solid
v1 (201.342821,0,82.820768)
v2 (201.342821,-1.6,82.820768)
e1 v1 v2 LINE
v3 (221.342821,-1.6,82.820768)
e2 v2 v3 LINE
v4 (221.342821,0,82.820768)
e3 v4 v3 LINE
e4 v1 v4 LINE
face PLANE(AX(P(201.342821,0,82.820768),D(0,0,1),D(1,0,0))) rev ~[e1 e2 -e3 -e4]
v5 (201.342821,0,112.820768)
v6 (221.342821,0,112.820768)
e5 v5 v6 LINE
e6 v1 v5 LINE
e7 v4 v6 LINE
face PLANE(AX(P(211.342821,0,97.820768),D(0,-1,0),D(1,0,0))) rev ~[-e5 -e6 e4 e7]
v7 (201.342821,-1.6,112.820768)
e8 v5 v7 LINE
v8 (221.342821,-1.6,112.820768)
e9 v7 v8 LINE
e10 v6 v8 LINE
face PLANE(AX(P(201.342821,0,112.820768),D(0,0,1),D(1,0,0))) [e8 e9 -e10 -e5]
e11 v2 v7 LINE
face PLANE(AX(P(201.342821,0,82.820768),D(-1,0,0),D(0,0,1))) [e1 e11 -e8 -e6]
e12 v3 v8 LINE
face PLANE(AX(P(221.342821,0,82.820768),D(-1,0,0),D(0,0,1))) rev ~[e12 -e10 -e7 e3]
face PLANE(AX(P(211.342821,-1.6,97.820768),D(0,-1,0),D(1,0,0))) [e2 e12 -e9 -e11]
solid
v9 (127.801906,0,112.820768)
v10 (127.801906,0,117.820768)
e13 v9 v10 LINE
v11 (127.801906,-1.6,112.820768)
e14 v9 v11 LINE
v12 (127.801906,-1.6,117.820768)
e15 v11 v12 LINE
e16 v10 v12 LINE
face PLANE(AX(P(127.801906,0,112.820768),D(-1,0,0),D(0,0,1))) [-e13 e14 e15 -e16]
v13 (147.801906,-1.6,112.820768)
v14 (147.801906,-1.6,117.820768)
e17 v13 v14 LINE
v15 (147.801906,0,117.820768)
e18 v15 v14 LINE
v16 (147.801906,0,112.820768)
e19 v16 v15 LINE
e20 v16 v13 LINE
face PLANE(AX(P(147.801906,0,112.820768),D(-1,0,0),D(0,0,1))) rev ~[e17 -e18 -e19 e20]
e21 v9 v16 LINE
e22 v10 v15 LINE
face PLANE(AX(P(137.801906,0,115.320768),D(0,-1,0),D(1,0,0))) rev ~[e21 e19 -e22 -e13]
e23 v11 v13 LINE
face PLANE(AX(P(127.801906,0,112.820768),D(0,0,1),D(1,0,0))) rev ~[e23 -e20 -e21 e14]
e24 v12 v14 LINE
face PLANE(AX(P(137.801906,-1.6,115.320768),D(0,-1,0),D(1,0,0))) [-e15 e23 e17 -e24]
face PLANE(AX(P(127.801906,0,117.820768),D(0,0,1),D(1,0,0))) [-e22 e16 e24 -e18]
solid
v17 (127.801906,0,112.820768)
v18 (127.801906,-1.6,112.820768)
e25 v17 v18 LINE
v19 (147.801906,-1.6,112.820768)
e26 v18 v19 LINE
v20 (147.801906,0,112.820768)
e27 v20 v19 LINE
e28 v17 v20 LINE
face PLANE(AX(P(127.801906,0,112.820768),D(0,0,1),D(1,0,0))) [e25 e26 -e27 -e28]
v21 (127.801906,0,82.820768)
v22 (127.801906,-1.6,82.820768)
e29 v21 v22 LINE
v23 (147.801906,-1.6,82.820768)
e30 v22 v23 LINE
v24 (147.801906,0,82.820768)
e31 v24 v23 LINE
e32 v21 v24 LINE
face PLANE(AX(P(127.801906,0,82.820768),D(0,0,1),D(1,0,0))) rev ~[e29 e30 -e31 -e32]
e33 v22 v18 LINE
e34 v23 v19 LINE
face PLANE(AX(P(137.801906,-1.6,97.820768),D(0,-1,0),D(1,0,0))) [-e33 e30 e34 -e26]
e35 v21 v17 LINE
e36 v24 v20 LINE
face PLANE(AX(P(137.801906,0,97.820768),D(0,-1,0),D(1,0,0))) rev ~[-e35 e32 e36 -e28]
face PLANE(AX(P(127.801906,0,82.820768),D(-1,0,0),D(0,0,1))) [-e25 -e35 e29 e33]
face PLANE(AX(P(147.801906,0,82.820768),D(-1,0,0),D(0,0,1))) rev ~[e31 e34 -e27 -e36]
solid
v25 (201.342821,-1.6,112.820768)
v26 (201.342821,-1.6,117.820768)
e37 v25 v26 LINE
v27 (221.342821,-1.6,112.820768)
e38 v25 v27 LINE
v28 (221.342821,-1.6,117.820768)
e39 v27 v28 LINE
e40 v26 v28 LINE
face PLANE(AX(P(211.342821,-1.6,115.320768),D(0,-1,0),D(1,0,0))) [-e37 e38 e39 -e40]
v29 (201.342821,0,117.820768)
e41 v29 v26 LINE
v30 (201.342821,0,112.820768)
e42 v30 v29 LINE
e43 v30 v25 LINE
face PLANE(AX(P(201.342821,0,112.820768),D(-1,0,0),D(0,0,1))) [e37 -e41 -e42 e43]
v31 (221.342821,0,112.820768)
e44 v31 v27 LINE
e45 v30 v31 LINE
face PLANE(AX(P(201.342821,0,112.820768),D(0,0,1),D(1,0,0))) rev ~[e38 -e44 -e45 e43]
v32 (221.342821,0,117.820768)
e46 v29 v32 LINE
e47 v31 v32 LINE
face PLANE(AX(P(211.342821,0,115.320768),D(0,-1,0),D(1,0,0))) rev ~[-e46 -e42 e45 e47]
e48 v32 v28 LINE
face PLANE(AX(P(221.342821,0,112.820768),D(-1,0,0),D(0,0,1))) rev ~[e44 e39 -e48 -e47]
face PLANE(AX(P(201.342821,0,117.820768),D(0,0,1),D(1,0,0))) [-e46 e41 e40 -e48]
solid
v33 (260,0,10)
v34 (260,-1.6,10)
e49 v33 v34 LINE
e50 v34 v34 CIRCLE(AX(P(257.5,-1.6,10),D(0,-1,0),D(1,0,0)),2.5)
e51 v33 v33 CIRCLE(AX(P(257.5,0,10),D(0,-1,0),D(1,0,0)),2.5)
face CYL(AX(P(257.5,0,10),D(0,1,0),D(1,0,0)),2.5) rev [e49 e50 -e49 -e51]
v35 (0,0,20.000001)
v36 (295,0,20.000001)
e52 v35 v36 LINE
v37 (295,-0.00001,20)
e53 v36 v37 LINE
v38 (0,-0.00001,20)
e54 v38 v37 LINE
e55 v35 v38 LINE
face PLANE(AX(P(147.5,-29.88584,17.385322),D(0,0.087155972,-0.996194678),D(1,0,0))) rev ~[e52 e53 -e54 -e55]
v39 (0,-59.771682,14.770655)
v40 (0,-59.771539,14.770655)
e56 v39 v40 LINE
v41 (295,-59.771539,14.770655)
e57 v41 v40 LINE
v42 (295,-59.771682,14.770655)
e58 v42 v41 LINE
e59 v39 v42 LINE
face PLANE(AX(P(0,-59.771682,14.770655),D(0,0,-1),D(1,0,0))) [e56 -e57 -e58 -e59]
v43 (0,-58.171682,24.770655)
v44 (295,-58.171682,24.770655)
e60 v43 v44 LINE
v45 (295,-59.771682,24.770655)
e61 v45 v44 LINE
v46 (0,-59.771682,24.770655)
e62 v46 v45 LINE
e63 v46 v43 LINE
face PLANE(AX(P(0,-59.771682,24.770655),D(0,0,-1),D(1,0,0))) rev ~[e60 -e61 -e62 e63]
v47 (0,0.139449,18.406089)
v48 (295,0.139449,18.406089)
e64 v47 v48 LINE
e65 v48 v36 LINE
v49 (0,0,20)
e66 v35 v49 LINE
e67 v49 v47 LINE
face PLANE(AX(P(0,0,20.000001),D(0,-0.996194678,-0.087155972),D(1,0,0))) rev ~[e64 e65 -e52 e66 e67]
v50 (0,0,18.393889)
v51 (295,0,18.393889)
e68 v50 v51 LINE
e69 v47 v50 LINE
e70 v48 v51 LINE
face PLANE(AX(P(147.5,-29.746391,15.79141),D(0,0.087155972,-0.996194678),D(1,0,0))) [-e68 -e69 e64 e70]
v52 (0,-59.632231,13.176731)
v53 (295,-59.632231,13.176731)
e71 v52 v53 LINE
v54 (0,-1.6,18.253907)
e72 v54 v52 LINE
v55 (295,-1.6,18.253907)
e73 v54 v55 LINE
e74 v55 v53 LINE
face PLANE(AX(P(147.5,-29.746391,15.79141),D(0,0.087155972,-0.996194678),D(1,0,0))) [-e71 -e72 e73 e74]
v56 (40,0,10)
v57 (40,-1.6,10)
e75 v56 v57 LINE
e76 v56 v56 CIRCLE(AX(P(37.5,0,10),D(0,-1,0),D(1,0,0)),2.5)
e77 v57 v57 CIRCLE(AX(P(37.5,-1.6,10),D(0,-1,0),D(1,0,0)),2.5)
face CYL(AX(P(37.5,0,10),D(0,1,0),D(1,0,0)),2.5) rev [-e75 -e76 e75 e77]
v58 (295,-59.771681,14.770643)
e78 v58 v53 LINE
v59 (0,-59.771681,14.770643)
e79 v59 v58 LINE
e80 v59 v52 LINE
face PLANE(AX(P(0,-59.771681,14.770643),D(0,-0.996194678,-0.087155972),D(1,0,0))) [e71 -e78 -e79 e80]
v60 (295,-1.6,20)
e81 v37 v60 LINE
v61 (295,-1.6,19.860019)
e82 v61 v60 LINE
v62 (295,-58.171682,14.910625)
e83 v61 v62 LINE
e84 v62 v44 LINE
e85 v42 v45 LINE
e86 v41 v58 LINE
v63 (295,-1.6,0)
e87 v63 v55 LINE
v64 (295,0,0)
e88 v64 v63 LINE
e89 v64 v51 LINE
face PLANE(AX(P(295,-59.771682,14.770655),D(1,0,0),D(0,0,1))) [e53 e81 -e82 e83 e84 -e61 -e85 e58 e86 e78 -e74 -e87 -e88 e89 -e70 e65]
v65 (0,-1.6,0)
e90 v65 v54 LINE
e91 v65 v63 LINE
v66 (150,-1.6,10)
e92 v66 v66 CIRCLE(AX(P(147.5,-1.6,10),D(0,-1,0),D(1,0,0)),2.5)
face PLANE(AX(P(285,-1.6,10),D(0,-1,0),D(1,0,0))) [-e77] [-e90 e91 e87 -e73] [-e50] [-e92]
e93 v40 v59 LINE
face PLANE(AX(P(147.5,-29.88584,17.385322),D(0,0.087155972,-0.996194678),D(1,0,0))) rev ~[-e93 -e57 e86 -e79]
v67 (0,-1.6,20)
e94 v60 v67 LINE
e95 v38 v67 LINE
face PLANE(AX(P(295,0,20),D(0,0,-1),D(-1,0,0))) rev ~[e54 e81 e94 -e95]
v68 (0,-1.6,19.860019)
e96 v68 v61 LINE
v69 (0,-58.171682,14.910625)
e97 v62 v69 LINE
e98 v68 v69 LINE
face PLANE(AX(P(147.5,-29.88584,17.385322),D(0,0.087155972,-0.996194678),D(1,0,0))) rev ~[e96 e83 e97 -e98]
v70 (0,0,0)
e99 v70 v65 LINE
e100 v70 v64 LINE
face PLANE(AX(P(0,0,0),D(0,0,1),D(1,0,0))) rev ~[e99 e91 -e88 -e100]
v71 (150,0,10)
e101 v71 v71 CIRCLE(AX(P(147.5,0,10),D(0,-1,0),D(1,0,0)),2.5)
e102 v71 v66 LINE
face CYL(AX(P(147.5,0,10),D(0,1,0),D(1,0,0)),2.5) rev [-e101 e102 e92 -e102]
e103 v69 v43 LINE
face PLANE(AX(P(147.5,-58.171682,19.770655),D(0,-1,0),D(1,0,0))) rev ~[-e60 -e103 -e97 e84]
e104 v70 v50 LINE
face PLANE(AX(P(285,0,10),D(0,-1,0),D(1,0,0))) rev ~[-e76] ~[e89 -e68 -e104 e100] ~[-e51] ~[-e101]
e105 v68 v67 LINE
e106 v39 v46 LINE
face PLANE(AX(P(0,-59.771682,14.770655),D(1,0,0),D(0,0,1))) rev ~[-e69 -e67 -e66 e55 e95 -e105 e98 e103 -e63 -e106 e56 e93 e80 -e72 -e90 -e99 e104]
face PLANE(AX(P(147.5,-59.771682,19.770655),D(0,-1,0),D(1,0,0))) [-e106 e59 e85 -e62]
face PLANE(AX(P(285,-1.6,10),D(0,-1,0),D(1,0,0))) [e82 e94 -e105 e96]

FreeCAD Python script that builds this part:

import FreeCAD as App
import Part
import Sketcher

V = App.Vector
Q = App.Units.Quantity


def add_polygon(sketch, points):
    """Adds a closed chain of lines whose ends are joined by coincident constraints."""
    first, n = sketch.GeometryCount, len(points)
    for a, b in zip(points, points[1:] + points[:1]):
        sketch.addGeometry(Part.LineSegment(App.Vector(*a, 0), App.Vector(*b, 0)), False)
    for i in range(n):
        sketch.addConstraint(Sketcher.Constraint("Coincident", first + i, 2, first + (i + 1) % n, 1))

doc = App.newDocument("Part")
params = doc.addObject("Spreadsheet::Sheet", "Params")
for row, (alias, value) in enumerate([
    ("sketch1_diameter", "5 mm"),
    ("sketch1_width", "295 mm"),
    ("sketch1_height", "20 mm"),
    ("pad1_length", "1.6 mm"),
    ("sketch2_width", "295 mm"),
    ("sketch2_height", "60 mm"),
    ("pad2_length", "1.6 mm"),
    ("sketch3_width", "295 mm"),
    ("sketch3_height", "10 mm"),
    ("pad3_length", "1.6 mm"),
    ("sketch4_width", "20 mm"),
    ("sketch4_height", "30 mm"),
    ("pad4_length", "1.6 mm"),
    ("sketch5_width", "20 mm"),
    ("sketch5_height", "5 mm"),
    ("pad5_length", "1.6 mm"),
], start=1):
    params.set(f"A{row}", alias)
    params.set(f"B{row}", "=" + value)
    params.setAlias(f"B{row}", alias)

body = doc.addObject("PartDesign::Body", "Body")

sketch1 = doc.addObject("Sketcher::SketchObject", "Sketch")
body.addObject(sketch1)
sketch1.AttachmentSupport = (doc.XZ_Plane, [""])
sketch1.MapMode = "FlatFace"
add_polygon(sketch1, [(295, 0), (295, 20), (0, 20), (0, 0)])
sketch1.addGeometry(Part.Circle(V(37.5, 10, 0), V(0, 0, 1), 2.5), False)
sketch1.addGeometry(Part.Circle(V(147.5, 10, 0), V(0, 0, 1), 2.5), False)
sketch1.addGeometry(Part.Circle(V(257.5, 10, 0), V(0, 0, 1), 2.5), False)
sketch1.addConstraint(Sketcher.Constraint("Vertical", 0))
sketch1.addConstraint(Sketcher.Constraint("Horizontal", 1))
sketch1.addConstraint(Sketcher.Constraint("Vertical", 2))
sketch1.addConstraint(Sketcher.Constraint("Horizontal", 3))
sketch1.addConstraint(Sketcher.Constraint("Coincident", 2, 2, -1, 1))
sketch1.addConstraint(Sketcher.Constraint("Equal", 4, 5))
sketch1.addConstraint(Sketcher.Constraint("Equal", 5, 6))
sketch1.addConstraint(Sketcher.Constraint("Horizontal", 4, 3, 5, 3))
sketch1.addConstraint(Sketcher.Constraint("Horizontal", 5, 3, 6, 3))
sketch1.addConstraint(Sketcher.Constraint("Diameter", 4, Q("5 mm")))
sketch1.addConstraint(Sketcher.Constraint("DistanceX", 1, 2, 1, 1, Q("295 mm")))
sketch1.addConstraint(Sketcher.Constraint("DistanceY", 0, 1, 0, 2, Q("20 mm")))
sketch1.addConstraint(Sketcher.Constraint("DistanceY", -1, 1, 4, 3, Q("10 mm")))
sketch1.addConstraint(Sketcher.Constraint("DistanceX", 4, 3, 5, 3, Q("110 mm")))
sketch1.addConstraint(Sketcher.Constraint("DistanceX", 5, 3, 6, 3, Q("110 mm")))
sketch1.addConstraint(Sketcher.Constraint("DistanceX", -1, 1, 4, 3, Q("37.5 mm")))
sketch1.setExpression("Constraints[13]", "Params.sketch1_diameter")
sketch1.setExpression("Constraints[14]", "Params.sketch1_width")
sketch1.setExpression("Constraints[15]", "Params.sketch1_height")
pad1 = doc.addObject("PartDesign::Pad", "Pad")
body.addObject(pad1)
pad1.Profile = sketch1
pad1.setExpression("Length", "Params.pad1_length")

sketch2 = doc.addObject("Sketcher::SketchObject", "Sketch001")
body.addObject(sketch2)
sketch2.Placement = App.Placement(V(0, -1.736482, 19.848078), App.Rotation(V(1, 0, 0), V(0, -0.996194678, -0.087155972), V(0, 0.087155972, -0.996194678), "ZXY"))
add_polygon(sketch2, [(0, 58), (0, -2), (295, -2), (295, 58)])
sketch2.addConstraint(Sketcher.Constraint("Vertical", 0))
sketch2.addConstraint(Sketcher.Constraint("Horizontal", 1))
sketch2.addConstraint(Sketcher.Constraint("Vertical", 2))
sketch2.addConstraint(Sketcher.Constraint("Horizontal", 3))
sketch2.addConstraint(Sketcher.Constraint("PointOnObject", 0, 2, -2))
sketch2.addConstraint(Sketcher.Constraint("DistanceX", 1, 1, 1, 2, Q("295 mm")))
sketch2.addConstraint(Sketcher.Constraint("DistanceY", 0, 2, 0, 1, Q("60 mm")))
sketch2.addConstraint(Sketcher.Constraint("DistanceY", 0, 2, -1, 1, Q("1.743115 mm")))
sketch2.setExpression("Constraints[9]", "Params.sketch2_width")
sketch2.setExpression("Constraints[10]", "Params.sketch2_height")
pad2 = doc.addObject("PartDesign::Pad", "Pad001")
body.addObject(pad2)
pad2.Profile = sketch2
pad2.setExpression("Length", "Params.pad2_length")

sketch3 = doc.addObject("Sketcher::SketchObject", "Sketch002")
body.addObject(sketch3)
sketch3.AttachmentSupport = (doc.XZ_Plane, [""])
sketch3.MapMode = "FlatFace"
sketch3.AttachmentOffset = App.Placement(V(0, 0, 59.771682), App.Rotation())
add_polygon(sketch3, [(0, 25), (0, 15), (295, 15), (295, 25)])
sketch3.addConstraint(Sketcher.Constraint("Vertical", 0))
sketch3.addConstraint(Sketcher.Constraint("Horizontal", 1))
sketch3.addConstraint(Sketcher.Constraint("Vertical", 2))
sketch3.addConstraint(Sketcher.Constraint("Horizontal", 3))
sketch3.addConstraint(Sketcher.Constraint("PointOnObject", 0, 2, -2))
sketch3.addConstraint(Sketcher.Constraint("DistanceX", 1, 1, 1, 2, Q("295 mm")))
sketch3.addConstraint(Sketcher.Constraint("DistanceY", 0, 2, 0, 1, Q("10 mm")))
sketch3.addConstraint(Sketcher.Constraint("DistanceY", -1, 1, 0, 2, Q("14.770655 mm")))
sketch3.setExpression("Constraints[9]", "Params.sketch3_width")
sketch3.setExpression("Constraints[10]", "Params.sketch3_height")
pad3 = doc.addObject("PartDesign::Pad", "Pad002")
body.addObject(pad3)
pad3.Profile = sketch3
pad3.setExpression("Length", "Params.pad3_length")
pad3.Reversed = True
body2 = doc.addObject("PartDesign::Body", "Body001")
body2.AllowCompound = True

sketch4 = doc.addObject("Sketcher::SketchObject", "Sketch003")
body2.addObject(sketch4)
sketch4.AttachmentSupport = (doc.getObject("XZ_Plane001"), [""])
sketch4.MapMode = "FlatFace"
add_polygon(sketch4, [(128, 113), (128, 83), (148, 83), (148, 113)])
add_polygon(sketch4, [(201, 113), (201, 83), (221, 83), (221, 113)])
sketch4.addConstraint(Sketcher.Constraint("Vertical", 0))
sketch4.addConstraint(Sketcher.Constraint("Horizontal", 1))
sketch4.addConstraint(Sketcher.Constraint("Vertical", 2))
sketch4.addConstraint(Sketcher.Constraint("Horizontal", 3))
sketch4.addConstraint(Sketcher.Constraint("Vertical", 4))
sketch4.addConstraint(Sketcher.Constraint("Horizontal", 5))
sketch4.addConstraint(Sketcher.Constraint("Vertical", 6))
sketch4.addConstraint(Sketcher.Constraint("Horizontal", 7))
sketch4.addConstraint(Sketcher.Constraint("Horizontal", 1, 2, 4, 2))
sketch4.addConstraint(Sketcher.Constraint("Horizontal", 3, 2, 6, 2))
sketch4.addConstraint(Sketcher.Constraint("Equal", 3, 5))
sketch4.addConstraint(Sketcher.Constraint("DistanceX", 1, 1, 1, 2, Q("20 mm")))
sketch4.addConstraint(Sketcher.Constraint("DistanceY", 0, 2, 0, 1, Q("30 mm")))
sketch4.addConstraint(Sketcher.Constraint("DistanceY", -1, 1, 0, 2, Q("82.820768 mm")))
sketch4.addConstraint(Sketcher.Constraint("DistanceX", -1, 1, 4, 2, Q("201.342821 mm")))
sketch4.addConstraint(Sketcher.Constraint("DistanceX", -1, 1, 0, 2, Q("127.801906 mm")))
sketch4.setExpression("Constraints[19]", "Params.sketch4_width")
sketch4.setExpression("Constraints[20]", "Params.sketch4_height")
pad4 = doc.addObject("PartDesign::Pad", "Pad003")
body2.addObject(pad4)
pad4.Profile = sketch4
pad4.setExpression("Length", "Params.pad4_length")
body3 = doc.addObject("PartDesign::Body", "Body002")
body3.AllowCompound = True

sketch5 = doc.addObject("Sketcher::SketchObject", "Sketch004")
body3.addObject(sketch5)
sketch5.AttachmentSupport = (doc.getObject("XZ_Plane002"), [""])
sketch5.MapMode = "FlatFace"
add_polygon(sketch5, [(128, 118), (128, 113), (148, 113), (148, 118)])
add_polygon(sketch5, [(201, 118), (201, 113), (221, 113), (221, 118)])
sketch5.addConstraint(Sketcher.Constraint("Vertical", 0))
sketch5.addConstraint(Sketcher.Constraint("Horizontal", 1))
sketch5.addConstraint(Sketcher.Constraint("Vertical", 2))
sketch5.addConstraint(Sketcher.Constraint("Horizontal", 3))
sketch5.addConstraint(Sketcher.Constraint("Vertical", 4))
sketch5.addConstraint(Sketcher.Constraint("Horizontal", 5))
sketch5.addConstraint(Sketcher.Constraint("Vertical", 6))
sketch5.addConstraint(Sketcher.Constraint("Horizontal", 7))
sketch5.addConstraint(Sketcher.Constraint("Horizontal", 1, 2, 4, 2))
sketch5.addConstraint(Sketcher.Constraint("Horizontal", 3, 2, 6, 2))
sketch5.addConstraint(Sketcher.Constraint("Equal", 3, 5))
sketch5.addConstraint(Sketcher.Constraint("DistanceX", 1, 1, 1, 2, Q("20 mm")))
sketch5.addConstraint(Sketcher.Constraint("DistanceY", 0, 2, 0, 1, Q("5 mm")))
sketch5.addConstraint(Sketcher.Constraint("DistanceY", -1, 1, 0, 2, Q("112.820768 mm")))
sketch5.addConstraint(Sketcher.Constraint("DistanceX", -1, 1, 4, 2, Q("201.342821 mm")))
sketch5.addConstraint(Sketcher.Constraint("DistanceX", -1, 1, 0, 2, Q("127.801906 mm")))
sketch5.setExpression("Constraints[19]", "Params.sketch5_width")
sketch5.setExpression("Constraints[20]", "Params.sketch5_height")
pad5 = doc.addObject("PartDesign::Pad", "Pad004")
body3.addObject(pad5)
pad5.Profile = sketch5
pad5.setExpression("Length", "Params.pad5_length")

doc.recompute()
